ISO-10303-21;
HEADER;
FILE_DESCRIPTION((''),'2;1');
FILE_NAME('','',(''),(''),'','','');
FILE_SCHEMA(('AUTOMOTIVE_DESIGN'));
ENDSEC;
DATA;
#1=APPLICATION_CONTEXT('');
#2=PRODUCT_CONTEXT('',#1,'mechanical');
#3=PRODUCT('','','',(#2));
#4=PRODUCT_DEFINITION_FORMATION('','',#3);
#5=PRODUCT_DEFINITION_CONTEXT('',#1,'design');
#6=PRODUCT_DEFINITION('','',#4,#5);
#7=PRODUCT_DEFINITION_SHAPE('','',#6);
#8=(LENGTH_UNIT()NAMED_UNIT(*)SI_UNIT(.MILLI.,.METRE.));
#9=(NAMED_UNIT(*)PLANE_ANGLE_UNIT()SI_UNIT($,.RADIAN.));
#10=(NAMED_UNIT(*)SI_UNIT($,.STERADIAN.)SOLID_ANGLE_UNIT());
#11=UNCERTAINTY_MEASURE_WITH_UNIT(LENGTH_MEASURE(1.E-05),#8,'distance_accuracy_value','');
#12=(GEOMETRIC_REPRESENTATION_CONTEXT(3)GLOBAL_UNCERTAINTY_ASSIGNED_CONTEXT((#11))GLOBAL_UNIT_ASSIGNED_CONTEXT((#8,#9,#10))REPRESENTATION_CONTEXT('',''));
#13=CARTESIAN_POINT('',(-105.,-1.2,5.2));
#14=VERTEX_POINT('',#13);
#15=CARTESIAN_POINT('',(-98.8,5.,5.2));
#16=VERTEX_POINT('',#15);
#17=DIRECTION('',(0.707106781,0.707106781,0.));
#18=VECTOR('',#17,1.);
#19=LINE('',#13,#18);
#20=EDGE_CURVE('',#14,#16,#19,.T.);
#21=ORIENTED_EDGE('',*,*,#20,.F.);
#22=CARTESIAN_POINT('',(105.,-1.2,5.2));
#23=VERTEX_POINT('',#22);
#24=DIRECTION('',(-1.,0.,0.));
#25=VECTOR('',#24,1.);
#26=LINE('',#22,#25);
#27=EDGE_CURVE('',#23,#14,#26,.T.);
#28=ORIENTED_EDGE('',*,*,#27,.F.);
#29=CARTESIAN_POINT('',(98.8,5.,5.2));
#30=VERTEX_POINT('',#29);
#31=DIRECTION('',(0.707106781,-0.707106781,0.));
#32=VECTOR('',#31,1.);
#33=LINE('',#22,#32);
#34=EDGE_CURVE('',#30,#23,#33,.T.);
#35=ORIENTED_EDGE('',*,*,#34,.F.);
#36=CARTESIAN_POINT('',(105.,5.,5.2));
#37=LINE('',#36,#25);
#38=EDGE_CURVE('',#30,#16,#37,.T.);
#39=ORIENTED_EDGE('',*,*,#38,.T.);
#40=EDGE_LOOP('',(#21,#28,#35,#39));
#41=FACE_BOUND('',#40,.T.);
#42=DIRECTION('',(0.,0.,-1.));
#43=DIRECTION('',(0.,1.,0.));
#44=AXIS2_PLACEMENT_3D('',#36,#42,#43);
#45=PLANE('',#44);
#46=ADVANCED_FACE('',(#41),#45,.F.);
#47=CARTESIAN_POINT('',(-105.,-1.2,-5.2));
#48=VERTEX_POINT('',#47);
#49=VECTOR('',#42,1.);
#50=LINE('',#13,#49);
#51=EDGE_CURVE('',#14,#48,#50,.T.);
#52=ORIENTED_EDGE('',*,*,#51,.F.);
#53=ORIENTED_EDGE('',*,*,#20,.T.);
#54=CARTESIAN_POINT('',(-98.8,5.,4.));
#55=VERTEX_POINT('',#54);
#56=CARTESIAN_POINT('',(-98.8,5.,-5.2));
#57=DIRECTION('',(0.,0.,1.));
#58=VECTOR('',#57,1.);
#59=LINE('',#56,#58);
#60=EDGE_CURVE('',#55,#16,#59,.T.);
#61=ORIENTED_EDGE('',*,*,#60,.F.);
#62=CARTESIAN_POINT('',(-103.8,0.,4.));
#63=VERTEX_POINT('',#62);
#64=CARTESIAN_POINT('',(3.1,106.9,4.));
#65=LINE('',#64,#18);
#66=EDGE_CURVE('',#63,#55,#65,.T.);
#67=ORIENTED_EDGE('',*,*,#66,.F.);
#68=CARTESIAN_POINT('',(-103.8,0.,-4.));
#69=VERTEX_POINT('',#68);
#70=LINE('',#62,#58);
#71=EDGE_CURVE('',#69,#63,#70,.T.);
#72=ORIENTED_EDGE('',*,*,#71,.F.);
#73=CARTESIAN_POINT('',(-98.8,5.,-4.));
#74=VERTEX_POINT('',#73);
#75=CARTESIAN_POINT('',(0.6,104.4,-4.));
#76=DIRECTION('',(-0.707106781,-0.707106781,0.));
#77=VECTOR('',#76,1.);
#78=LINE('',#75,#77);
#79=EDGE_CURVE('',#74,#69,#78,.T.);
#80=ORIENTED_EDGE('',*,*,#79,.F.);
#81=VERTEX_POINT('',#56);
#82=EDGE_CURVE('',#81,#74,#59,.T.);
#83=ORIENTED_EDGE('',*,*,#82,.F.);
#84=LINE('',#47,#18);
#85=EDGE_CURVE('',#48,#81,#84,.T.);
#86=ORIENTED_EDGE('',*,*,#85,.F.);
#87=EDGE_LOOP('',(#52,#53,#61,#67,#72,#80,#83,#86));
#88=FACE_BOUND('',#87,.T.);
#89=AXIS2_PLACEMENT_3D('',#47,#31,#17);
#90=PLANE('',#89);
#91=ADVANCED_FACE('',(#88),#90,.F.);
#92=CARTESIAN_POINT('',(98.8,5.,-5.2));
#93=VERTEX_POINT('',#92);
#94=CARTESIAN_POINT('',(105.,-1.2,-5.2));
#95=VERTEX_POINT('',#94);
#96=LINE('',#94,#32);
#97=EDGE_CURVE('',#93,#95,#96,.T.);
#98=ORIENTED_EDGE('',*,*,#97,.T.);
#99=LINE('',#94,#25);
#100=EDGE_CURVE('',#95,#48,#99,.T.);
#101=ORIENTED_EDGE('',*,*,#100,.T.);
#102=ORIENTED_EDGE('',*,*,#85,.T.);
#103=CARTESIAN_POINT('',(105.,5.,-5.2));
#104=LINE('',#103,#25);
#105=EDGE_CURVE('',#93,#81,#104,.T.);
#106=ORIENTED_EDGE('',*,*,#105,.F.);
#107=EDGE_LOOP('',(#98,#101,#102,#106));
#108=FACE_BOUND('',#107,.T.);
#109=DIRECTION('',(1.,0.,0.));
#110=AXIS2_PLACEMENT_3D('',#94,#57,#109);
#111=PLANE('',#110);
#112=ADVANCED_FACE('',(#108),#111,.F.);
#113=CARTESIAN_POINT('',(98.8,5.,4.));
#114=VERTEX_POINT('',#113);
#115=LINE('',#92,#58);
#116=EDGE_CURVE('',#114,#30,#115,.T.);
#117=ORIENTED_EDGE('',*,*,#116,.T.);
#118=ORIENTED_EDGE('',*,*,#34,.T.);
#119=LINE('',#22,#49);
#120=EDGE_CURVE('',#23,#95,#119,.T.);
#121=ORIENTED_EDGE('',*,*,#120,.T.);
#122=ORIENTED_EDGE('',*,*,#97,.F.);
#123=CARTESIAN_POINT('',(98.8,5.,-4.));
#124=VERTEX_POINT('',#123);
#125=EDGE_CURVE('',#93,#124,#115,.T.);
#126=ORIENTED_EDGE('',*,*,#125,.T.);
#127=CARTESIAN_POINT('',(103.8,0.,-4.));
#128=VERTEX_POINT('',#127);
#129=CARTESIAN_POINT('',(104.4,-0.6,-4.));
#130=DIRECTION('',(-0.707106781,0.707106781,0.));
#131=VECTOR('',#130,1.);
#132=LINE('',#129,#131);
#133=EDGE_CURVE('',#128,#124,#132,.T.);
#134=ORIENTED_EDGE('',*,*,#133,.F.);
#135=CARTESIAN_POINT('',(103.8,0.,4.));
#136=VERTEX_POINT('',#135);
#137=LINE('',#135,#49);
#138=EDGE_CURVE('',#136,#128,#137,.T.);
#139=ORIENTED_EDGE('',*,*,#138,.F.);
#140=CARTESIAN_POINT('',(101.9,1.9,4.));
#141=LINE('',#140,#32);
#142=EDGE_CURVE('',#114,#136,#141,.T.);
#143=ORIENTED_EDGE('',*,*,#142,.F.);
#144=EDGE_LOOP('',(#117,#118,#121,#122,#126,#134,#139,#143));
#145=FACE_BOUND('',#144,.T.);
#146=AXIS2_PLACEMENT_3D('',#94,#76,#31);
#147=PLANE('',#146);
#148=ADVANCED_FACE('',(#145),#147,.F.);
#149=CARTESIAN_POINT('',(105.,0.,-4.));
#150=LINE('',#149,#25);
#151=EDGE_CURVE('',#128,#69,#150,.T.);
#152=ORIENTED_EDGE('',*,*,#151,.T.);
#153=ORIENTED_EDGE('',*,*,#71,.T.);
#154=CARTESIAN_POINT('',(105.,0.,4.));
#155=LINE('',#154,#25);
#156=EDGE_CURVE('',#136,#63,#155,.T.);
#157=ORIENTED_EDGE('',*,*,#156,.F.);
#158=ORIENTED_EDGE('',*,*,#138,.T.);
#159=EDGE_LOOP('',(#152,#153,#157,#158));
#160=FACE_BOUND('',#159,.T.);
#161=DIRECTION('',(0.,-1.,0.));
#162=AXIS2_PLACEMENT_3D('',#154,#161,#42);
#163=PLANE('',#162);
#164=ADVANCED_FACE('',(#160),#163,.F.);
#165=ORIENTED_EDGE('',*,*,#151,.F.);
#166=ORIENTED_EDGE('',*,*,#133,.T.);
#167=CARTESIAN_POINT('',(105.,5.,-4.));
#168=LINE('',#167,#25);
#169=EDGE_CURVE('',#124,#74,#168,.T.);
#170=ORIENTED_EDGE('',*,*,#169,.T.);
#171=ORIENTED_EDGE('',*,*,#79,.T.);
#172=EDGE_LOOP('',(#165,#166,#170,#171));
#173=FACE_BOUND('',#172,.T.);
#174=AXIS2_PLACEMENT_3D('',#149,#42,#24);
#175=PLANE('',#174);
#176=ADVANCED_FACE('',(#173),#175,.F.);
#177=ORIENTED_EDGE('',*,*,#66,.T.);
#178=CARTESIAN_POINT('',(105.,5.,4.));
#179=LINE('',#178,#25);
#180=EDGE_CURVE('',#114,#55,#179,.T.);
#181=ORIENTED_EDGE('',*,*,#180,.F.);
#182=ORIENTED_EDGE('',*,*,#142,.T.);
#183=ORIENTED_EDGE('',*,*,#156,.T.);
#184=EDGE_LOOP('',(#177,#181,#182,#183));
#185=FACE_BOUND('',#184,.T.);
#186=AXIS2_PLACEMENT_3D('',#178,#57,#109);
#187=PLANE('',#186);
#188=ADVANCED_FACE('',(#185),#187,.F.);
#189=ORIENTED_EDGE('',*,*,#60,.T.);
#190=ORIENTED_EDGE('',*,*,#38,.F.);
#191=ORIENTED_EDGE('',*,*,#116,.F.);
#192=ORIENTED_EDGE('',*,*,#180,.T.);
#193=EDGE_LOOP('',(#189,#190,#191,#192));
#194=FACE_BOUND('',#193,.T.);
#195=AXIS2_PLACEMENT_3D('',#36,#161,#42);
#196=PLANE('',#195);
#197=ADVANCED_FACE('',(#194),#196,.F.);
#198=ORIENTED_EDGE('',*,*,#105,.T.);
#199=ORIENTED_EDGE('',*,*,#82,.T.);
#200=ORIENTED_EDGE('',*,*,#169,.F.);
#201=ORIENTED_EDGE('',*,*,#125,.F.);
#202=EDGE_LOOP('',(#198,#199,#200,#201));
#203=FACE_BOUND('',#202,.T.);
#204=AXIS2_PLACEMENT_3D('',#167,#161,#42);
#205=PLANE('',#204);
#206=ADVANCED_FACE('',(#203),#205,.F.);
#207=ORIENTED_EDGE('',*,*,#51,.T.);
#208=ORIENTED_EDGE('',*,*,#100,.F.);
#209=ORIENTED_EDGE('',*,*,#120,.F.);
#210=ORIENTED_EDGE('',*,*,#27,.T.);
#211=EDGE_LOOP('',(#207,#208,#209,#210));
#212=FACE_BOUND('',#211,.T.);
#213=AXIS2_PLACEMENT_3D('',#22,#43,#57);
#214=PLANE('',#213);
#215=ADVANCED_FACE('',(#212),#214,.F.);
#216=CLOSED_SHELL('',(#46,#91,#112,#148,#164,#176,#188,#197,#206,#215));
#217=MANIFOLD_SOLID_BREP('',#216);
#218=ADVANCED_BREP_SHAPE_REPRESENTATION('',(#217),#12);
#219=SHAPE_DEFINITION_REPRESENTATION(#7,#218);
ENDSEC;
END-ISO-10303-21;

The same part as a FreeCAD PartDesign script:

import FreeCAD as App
import Part
import Sketcher
from FreeCAD import Vector
Q = App.Units.Quantity


def add_polygon(sketch, points):
    """Adds a closed chain of lines whose ends are joined by coincident constraints."""
    first, n = sketch.GeometryCount, len(points)
    for a, b in zip(points, points[1:] + points[:1]):
        sketch.addGeometry(Part.LineSegment(App.Vector(*a, 0), App.Vector(*b, 0)), False)
    for i in range(n):
        sketch.addConstraint(Sketcher.Constraint("Coincident", first + i, 2, first + (i + 1) % n, 1))

doc = App.newDocument("Part")
body = doc.addObject("PartDesign::Body", "Body")

sketch1 = body.newObject("Sketcher::SketchObject", "Sketch")
sketch1.AttachmentSupport = (doc.getObject("YZ_Plane"), [""])
sketch1.MapMode = "FlatFace"
add_polygon(sketch1, [(0, 4), (5, 4), (5, 5.2), (-1.2, 5.2), (-1.2, -5.2), (5, -5.2), (5, -4), (0, -4)])
sketch1.addConstraint(Sketcher.Constraint("Horizontal", 0))
sketch1.addConstraint(Sketcher.Constraint("Vertical", 1))
sketch1.addConstraint(Sketcher.Constraint("Horizontal", 2))
sketch1.addConstraint(Sketcher.Constraint("Vertical", 3))
sketch1.addConstraint(Sketcher.Constraint("Horizontal", 4))
sketch1.addConstraint(Sketcher.Constraint("Vertical", 5))
sketch1.addConstraint(Sketcher.Constraint("Horizontal", 6))
sketch1.addConstraint(Sketcher.Constraint("Vertical", 7))
sketch1.addConstraint(Sketcher.Constraint("Symmetric", 6, 2, 7, 2, -1, 1))
sketch1.addConstraint(Sketcher.Constraint("Symmetric", 1, 2, 4, 2, -1))
sketch1.addConstraint(Sketcher.Constraint("DistanceX", 0, 1, 0, 2, Q("5 mm")))
sketch1.addConstraint(Sketcher.Constraint("DistanceY", 7, 1, 7, 2, Q("8 mm")))
sketch1.addConstraint(Sketcher.Constraint("DistanceX", 2, 2, 2, 1, Q("6.2 mm")))
sketch1.addConstraint(Sketcher.Constraint("DistanceY", 1, 1, 1, 2, Q("1.2 mm")))
pad1 = body.newObject("PartDesign::Pad", "Pad")
pad1.Profile = sketch1
pad1.Length = 210
pad1.Midplane = True

sketch2 = body.newObject("Sketcher::SketchObject", "Sketch001")
sketch2.AttachmentSupport = (doc.getObject("XY_Plane"), [""])
sketch2.MapMode = "FlatFace"
sketch2.AttachmentOffset = App.Placement(Vector(0, 0, 5.2), App.Rotation())
add_polygon(sketch2, [(-105, 5), (-105, -1), (-99, 5)])
add_polygon(sketch2, [(105, -1), (105, 5), (99, 5)])
sketch2.addConstraint(Sketcher.Constraint("Vertical", 0))
sketch2.addConstraint(Sketcher.Constraint("Horizontal", 2))
sketch2.addConstraint(Sketcher.Constraint("Vertical", 3))
sketch2.addConstraint(Sketcher.Constraint("Horizontal", 4))
sketch2.addConstraint(Sketcher.Constraint("Symmetric", 2, 2, 3, 2, -2))
sketch2.addConstraint(Sketcher.Constraint("Perpendicular", 1, 5))
sketch2.addConstraint(Sketcher.Constraint("Horizontal", 0, 2, 5, 2))
sketch2.addConstraint(Sketcher.Constraint("Equal", 2, 4))
sketch2.addConstraint(Sketcher.Constraint("DistanceX", 2, 2, 2, 1, Q("6.2 mm")))
sketch2.addConstraint(Sketcher.Constraint("DistanceX", 0, 2, -1, 1, Q("105 mm")))
sketch2.addConstraint(Sketcher.Constraint("DistanceY", -1, 1, 1, 2, Q("5 mm")))
pocket1 = body.newObject("PartDesign::Pocket", "Pocket")
pocket1.Profile = sketch2
pocket1.Type = "ThroughAll"

doc.recompute()
